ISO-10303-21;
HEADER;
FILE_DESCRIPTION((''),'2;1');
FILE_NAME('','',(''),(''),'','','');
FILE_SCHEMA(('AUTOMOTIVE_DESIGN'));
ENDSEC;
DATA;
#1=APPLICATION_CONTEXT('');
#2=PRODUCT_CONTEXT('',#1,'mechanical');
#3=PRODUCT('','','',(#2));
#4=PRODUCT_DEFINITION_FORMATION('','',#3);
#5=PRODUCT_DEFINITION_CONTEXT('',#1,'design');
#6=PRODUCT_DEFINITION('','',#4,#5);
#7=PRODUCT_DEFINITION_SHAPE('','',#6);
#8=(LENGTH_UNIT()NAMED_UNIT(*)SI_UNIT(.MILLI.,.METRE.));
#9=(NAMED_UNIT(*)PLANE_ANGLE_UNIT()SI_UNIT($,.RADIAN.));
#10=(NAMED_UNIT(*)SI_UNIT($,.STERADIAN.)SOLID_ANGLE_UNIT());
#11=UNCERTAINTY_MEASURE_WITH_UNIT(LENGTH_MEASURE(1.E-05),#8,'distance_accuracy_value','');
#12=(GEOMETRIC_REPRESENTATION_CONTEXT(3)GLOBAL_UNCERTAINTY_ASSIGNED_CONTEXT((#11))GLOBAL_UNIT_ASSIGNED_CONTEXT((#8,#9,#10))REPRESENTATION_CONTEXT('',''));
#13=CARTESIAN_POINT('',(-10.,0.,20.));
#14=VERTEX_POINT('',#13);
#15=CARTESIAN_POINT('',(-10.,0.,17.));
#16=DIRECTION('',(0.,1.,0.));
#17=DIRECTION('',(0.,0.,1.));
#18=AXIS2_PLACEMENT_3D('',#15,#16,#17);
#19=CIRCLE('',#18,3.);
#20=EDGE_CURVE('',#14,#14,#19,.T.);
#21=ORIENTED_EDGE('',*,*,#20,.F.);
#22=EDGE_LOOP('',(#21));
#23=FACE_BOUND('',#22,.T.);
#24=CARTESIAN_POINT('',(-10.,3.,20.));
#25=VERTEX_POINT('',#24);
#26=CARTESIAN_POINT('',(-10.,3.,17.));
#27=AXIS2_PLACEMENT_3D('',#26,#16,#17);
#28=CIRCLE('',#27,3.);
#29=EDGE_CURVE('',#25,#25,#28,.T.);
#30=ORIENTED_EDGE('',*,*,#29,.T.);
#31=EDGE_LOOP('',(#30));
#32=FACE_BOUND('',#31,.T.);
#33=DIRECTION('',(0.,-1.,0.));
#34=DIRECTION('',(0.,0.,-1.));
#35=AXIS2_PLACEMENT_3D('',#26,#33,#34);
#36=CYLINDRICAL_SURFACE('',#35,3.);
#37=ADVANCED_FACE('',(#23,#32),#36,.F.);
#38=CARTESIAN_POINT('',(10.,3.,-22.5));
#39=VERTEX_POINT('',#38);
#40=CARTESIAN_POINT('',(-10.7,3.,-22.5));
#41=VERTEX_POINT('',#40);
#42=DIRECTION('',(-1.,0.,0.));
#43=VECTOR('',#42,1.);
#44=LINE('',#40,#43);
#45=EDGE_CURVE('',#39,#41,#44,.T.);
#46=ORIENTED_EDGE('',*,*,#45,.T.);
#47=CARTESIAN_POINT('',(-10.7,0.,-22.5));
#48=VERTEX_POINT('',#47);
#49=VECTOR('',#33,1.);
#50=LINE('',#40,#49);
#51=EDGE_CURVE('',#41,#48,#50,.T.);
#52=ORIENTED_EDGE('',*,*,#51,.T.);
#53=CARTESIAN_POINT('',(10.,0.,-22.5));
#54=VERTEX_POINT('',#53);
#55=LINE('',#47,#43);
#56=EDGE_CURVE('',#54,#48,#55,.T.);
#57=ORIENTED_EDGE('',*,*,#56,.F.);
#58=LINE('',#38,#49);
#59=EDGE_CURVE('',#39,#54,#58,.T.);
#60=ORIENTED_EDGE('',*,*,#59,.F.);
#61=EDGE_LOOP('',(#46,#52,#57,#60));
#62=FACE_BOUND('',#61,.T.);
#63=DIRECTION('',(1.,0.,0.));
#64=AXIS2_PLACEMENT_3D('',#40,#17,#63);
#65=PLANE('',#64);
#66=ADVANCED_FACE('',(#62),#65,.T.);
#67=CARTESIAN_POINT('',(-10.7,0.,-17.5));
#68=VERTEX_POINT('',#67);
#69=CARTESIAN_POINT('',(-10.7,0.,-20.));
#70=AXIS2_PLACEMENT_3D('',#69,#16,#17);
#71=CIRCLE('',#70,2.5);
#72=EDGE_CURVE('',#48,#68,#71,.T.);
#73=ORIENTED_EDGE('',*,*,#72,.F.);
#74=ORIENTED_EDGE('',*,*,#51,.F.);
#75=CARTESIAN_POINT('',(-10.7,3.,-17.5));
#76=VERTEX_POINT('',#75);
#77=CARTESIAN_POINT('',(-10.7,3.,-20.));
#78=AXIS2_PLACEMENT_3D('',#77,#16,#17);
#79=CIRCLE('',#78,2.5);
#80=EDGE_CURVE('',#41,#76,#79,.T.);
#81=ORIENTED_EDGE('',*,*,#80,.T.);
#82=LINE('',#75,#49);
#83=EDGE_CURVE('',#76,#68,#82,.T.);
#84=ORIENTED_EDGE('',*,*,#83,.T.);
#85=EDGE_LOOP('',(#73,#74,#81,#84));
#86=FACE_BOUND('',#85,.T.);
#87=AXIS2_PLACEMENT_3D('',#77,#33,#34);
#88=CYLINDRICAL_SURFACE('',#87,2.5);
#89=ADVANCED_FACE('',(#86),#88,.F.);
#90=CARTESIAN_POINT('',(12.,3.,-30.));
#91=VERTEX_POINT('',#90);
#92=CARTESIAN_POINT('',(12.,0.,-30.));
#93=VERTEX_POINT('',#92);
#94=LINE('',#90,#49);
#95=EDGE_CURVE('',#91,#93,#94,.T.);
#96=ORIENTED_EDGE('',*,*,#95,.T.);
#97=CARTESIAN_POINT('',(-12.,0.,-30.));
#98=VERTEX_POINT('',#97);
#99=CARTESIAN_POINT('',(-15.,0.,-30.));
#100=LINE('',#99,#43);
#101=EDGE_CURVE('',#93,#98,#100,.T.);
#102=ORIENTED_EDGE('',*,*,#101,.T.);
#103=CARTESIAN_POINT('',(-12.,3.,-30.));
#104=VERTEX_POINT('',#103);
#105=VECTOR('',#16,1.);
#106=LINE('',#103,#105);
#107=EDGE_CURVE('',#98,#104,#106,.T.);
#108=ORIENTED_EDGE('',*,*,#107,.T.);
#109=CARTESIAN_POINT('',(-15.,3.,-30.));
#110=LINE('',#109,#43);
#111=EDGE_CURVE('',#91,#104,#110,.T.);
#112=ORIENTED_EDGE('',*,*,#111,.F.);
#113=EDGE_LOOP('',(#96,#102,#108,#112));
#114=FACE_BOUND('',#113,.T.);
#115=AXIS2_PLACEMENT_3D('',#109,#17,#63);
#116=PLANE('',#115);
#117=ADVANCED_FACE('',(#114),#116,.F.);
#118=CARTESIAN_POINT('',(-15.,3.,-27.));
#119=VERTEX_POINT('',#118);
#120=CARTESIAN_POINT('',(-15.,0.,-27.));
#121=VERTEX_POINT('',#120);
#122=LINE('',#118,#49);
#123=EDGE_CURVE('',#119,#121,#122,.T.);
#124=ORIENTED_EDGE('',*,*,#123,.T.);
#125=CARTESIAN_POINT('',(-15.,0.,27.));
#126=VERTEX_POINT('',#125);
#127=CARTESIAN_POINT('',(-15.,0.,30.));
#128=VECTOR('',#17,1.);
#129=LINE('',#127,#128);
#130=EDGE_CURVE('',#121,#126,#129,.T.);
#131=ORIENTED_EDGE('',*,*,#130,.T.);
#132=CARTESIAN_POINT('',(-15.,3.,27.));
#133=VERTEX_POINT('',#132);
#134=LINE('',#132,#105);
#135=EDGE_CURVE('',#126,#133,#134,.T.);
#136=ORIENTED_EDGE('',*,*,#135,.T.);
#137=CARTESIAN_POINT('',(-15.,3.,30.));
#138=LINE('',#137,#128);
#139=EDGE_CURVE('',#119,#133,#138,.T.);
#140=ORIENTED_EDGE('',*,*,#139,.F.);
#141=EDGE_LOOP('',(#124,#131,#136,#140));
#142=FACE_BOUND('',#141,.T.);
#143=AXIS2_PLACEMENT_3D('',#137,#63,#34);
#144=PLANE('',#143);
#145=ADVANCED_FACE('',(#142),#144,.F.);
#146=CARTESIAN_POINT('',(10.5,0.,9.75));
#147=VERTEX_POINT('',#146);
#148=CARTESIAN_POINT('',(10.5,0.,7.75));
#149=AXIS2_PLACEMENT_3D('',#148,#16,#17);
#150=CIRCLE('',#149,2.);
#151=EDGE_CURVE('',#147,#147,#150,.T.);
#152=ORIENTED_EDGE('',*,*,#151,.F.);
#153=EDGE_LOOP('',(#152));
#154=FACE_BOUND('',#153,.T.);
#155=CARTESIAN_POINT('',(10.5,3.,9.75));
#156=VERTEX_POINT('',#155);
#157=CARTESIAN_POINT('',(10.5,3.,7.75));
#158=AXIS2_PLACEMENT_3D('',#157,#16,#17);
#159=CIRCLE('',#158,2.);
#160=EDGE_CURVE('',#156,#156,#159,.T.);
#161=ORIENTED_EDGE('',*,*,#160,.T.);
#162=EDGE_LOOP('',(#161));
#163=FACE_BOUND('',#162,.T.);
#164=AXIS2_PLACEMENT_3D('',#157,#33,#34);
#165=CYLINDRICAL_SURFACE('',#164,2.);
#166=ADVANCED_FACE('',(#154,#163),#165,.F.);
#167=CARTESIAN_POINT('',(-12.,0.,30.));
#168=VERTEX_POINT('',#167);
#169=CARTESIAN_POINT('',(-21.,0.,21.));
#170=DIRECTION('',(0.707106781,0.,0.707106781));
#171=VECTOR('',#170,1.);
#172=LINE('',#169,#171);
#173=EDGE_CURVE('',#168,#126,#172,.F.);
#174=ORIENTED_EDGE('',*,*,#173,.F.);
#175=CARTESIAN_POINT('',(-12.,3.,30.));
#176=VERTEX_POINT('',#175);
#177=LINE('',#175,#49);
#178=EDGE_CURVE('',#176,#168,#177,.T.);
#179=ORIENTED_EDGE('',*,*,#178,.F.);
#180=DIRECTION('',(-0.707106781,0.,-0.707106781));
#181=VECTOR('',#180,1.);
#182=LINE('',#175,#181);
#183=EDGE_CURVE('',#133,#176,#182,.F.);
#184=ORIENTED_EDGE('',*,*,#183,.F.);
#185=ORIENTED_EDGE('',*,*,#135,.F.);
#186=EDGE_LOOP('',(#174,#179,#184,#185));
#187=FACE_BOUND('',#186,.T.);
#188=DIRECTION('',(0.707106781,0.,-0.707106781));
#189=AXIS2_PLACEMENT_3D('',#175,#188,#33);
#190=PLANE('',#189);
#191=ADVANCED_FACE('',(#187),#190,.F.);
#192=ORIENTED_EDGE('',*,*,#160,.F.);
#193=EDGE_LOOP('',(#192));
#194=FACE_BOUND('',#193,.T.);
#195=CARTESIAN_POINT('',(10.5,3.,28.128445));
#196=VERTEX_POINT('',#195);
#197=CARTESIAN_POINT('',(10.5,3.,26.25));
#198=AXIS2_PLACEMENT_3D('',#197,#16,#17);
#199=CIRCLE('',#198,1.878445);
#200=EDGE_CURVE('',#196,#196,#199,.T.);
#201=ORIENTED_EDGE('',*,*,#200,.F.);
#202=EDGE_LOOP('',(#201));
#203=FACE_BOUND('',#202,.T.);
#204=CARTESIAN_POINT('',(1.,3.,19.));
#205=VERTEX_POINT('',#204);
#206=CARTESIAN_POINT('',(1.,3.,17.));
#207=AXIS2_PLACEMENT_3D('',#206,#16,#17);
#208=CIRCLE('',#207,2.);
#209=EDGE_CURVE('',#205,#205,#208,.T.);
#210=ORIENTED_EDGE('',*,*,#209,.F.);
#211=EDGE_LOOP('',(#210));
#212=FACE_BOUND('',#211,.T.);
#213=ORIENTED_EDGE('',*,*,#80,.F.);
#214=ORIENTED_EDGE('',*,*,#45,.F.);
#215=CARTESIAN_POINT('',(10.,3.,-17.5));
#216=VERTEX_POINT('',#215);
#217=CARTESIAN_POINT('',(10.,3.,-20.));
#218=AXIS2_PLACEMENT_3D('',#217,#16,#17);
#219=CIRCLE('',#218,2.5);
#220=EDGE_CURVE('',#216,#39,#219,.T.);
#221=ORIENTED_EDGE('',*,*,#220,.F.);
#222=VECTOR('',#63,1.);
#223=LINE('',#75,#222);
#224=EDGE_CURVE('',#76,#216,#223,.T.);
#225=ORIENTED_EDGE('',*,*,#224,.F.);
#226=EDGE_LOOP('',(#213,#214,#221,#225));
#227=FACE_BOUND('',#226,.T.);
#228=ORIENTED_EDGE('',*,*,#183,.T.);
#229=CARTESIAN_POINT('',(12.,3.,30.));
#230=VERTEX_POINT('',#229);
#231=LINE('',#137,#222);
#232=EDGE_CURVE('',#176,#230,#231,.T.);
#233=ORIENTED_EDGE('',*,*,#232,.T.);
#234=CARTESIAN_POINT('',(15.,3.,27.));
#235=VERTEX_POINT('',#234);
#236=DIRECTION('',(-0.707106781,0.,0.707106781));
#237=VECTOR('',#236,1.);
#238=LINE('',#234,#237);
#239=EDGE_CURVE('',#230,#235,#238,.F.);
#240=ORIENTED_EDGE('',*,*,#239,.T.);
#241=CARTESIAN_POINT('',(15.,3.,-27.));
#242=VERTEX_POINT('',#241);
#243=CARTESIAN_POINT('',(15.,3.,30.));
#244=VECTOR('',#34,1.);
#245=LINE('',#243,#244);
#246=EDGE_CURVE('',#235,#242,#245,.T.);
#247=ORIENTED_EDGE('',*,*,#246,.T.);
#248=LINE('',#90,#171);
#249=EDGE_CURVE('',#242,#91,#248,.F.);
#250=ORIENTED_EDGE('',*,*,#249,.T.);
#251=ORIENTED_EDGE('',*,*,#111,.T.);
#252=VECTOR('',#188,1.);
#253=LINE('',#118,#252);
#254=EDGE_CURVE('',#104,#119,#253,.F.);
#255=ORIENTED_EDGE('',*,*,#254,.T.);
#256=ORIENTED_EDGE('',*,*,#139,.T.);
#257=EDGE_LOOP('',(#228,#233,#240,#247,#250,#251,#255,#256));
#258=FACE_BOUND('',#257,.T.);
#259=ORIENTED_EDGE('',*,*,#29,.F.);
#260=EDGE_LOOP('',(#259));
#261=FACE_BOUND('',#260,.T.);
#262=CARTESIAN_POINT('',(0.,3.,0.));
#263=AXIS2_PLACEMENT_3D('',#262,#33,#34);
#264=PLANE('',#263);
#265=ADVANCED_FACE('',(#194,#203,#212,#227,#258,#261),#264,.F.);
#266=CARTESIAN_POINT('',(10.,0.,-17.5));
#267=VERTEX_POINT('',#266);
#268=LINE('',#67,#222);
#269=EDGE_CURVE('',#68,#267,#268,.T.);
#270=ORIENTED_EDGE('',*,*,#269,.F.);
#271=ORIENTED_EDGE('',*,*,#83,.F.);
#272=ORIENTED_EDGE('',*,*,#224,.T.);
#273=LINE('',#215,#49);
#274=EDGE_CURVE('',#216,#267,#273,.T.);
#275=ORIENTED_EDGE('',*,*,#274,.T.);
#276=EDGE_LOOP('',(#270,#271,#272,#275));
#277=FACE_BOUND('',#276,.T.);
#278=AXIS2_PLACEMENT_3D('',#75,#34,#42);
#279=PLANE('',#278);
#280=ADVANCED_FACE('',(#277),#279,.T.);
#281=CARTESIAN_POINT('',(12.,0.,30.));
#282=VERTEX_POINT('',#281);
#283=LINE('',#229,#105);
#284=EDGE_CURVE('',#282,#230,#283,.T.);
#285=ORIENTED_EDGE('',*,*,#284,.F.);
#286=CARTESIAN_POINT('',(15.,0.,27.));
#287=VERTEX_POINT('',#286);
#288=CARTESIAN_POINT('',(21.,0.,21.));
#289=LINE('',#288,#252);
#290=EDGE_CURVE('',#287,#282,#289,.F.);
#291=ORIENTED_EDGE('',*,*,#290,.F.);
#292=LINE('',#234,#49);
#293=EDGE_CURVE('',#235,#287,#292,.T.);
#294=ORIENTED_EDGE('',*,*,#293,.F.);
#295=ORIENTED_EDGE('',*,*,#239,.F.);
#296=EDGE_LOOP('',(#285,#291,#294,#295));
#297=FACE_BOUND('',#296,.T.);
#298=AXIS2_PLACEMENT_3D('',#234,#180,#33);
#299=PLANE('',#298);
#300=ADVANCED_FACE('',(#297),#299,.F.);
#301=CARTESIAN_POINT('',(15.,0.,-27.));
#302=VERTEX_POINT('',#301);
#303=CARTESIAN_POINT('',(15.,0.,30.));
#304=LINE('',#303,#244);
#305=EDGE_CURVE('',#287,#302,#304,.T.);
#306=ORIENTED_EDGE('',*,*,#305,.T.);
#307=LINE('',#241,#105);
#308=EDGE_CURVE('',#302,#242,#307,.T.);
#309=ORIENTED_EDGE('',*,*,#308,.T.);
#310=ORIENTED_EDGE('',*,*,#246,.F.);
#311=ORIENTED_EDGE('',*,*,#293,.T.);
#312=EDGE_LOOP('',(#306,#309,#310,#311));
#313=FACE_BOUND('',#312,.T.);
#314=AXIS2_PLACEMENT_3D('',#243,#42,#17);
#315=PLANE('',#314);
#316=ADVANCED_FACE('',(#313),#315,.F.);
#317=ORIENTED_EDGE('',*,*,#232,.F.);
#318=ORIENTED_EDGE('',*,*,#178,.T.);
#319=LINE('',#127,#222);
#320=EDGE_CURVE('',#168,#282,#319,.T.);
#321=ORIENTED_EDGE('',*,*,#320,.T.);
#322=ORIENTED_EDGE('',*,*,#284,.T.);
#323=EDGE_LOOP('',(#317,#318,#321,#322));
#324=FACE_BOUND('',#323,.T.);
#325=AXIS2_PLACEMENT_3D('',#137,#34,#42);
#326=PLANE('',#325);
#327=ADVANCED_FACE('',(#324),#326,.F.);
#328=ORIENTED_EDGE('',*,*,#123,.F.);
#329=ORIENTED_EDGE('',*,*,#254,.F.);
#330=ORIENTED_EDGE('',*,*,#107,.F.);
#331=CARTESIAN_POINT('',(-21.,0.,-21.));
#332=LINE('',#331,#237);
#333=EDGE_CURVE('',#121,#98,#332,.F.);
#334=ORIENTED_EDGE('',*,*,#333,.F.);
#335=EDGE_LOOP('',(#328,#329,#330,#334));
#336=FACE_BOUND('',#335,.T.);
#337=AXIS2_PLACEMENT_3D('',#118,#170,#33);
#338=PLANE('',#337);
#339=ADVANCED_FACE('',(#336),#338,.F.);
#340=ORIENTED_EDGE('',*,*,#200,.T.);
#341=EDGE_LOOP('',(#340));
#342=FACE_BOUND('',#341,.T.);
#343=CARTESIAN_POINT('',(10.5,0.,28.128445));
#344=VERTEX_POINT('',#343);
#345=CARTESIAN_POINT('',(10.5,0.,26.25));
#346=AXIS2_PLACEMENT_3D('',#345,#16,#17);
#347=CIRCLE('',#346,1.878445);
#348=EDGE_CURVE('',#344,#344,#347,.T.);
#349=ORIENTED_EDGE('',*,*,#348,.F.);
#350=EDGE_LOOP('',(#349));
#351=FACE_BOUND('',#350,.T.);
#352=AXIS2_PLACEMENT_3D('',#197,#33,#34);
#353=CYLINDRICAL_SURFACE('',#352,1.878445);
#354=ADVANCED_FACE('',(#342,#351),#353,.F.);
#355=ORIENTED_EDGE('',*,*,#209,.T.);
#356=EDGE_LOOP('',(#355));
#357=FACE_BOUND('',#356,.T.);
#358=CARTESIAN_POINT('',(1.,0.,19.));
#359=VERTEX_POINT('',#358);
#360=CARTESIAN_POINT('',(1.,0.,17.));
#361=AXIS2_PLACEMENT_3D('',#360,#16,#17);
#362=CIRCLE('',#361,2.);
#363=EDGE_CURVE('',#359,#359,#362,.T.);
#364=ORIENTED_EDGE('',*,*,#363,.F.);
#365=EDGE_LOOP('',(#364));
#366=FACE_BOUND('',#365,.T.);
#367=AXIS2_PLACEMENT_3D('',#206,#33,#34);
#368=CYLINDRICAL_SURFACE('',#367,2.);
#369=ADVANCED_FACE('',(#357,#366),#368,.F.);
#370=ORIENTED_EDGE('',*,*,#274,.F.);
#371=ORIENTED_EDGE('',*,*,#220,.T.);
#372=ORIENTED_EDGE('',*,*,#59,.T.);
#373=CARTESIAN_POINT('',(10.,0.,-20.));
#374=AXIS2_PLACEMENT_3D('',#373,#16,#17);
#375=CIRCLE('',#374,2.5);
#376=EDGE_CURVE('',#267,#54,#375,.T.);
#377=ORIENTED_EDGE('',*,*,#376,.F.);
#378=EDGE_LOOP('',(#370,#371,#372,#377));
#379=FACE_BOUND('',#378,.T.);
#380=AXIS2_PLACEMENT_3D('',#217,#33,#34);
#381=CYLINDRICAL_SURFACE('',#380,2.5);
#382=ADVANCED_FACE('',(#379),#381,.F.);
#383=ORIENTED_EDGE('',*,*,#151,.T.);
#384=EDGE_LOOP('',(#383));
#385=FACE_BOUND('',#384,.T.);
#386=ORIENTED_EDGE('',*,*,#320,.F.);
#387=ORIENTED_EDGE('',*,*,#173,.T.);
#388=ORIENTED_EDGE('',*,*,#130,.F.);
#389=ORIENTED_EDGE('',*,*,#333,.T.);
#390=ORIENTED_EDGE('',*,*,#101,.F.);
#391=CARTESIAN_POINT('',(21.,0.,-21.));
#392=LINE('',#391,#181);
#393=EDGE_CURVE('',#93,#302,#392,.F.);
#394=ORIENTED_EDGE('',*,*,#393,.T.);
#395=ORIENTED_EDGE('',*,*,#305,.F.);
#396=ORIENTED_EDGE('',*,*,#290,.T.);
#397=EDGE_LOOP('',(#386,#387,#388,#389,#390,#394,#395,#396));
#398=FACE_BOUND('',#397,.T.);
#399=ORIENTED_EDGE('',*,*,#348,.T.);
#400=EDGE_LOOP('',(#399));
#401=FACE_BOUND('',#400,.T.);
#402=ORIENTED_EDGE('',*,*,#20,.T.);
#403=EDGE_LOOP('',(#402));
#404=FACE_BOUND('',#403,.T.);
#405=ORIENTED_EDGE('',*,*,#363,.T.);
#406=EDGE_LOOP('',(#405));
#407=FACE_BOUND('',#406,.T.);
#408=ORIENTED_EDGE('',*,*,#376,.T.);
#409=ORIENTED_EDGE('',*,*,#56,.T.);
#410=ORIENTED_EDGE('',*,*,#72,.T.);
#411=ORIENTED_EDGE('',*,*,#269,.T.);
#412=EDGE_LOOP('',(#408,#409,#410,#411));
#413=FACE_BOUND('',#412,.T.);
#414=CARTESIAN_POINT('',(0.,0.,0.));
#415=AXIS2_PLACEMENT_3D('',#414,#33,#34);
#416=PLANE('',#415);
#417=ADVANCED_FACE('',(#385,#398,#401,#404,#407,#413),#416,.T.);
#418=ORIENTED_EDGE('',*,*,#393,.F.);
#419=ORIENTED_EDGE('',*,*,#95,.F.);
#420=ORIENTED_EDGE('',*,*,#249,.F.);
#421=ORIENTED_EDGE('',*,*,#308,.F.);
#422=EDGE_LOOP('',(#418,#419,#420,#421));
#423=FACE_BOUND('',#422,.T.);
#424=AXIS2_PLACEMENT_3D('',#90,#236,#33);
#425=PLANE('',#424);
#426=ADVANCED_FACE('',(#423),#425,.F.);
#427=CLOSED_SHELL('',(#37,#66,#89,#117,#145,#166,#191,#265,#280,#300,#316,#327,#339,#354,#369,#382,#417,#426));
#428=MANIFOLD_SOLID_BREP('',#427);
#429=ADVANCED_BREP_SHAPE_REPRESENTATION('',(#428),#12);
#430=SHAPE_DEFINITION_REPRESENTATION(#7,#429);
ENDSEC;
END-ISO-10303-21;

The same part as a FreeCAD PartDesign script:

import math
import FreeCAD as App
import Part
import Sketcher

V = App.Vector


def edges_at(feature, points):
    """Names of the edges that pass closest to the given points."""
    edges = feature.Shape.Edges
    near = lambda p: min(range(len(edges)), key=lambda i: edges[i].distToShape(Part.Vertex(*p))[0])
    return sorted({f"Edge{near(p) + 1}" for p in points})

doc = App.newDocument("Part")
body = doc.addObject("PartDesign::Body", "Body")

# Sketch on XZ plane
sketch1 = body.newObject("Sketcher::SketchObject", "Sketch")
sketch1.AttachmentSupport = (doc.getObject("XZ_Plane"), [""])
sketch1.MapMode = "FlatFace"
sketch1.addGeometry([
    Part.LineSegment(V(-15, -30, 0), V(-15, 30, 0)),  # 0
    Part.LineSegment(V(-15, 30, 0), V(15, 30, 0)),  # 1
    Part.LineSegment(V(15, 30, 0), V(15, -30, 0)),  # 2
    Part.LineSegment(V(15, -30, 0), V(-15, -30, 0)),  # 3
    Part.Circle(V(-10, 17, 0), V(0, 0, 1), 3),  # 4
    Part.Circle(V(1, 17, 0), V(0, 0, 1), 2),  # 5
    Part.Circle(V(10.5, 26.2, 0), V(0, 0, 1), 1.9),  # 6
    Part.Circle(V(10.5, 7.8, 0), V(0, 0, 1), 2),  # 7
    Part.LineSegment(V(10, -17.5, 0), V(-10.7, -17.5, 0)),  # 8
    Part.ArcOfCircle(Part.Circle(V(-10.7, -20, 0), V(0, 0, 1), 2.5), math.radians(90), math.radians(270)),  # 9
    Part.LineSegment(V(-10.7, -22.5, 0), V(10, -22.5, 0)),  # 10
    Part.ArcOfCircle(Part.Circle(V(10, -20, 0), V(0, 0, 1), 2.5), math.radians(-90), math.radians(90)),  # 11
], False)
sketch1.addConstraint([
    Sketcher.Constraint("Coincident", 0, 2, 1, 1),
    Sketcher.Constraint("Coincident", 1, 2, 2, 1),
    Sketcher.Constraint("Coincident", 2, 2, 3, 1),
    Sketcher.Constraint("Coincident", 3, 2, 0, 1),
    Sketcher.Constraint("Tangent", 8, 2, 9, 1),
    Sketcher.Constraint("Tangent", 9, 2, 10, 1),
    Sketcher.Constraint("Tangent", 10, 2, 11, 1),
    Sketcher.Constraint("Tangent", 11, 2, 8, 1),
    Sketcher.Constraint("Vertical", 0),
    Sketcher.Constraint("Horizontal", 1),
    Sketcher.Constraint("Vertical", 2),
    Sketcher.Constraint("Horizontal", 3),
    Sketcher.Constraint("Horizontal", 8),
    Sketcher.Constraint("Horizontal", 10),
    Sketcher.Constraint("Equal", 5, 7),
    Sketcher.Constraint("Symmetric", 0, 2, 2, 2, -1, 1),
    Sketcher.Constraint("Horizontal", 4, 3, 5, 3),
    Sketcher.Constraint("Vertical", 6, 3, 7, 3),
    Sketcher.Constraint("Diameter", 4, 6.0),
    Sketcher.Constraint("Diameter", 5, 4.0),
    Sketcher.Constraint("Radius", 9, 2.5),
    Sketcher.Constraint("DistanceX", 1, 1, 1, 2, 30.0),
    Sketcher.Constraint("DistanceY", 0, 1, 0, 2, 60.0),
    Sketcher.Constraint("DistanceX", 8, 2, 8, 1, 20.7),
    Sketcher.Constraint("DistanceX", 4, 3, -1, 1, 10.0),
    Sketcher.Constraint("DistanceY", -1, 1, 4, 3, 17.0),
    Sketcher.Constraint("DistanceX", -1, 1, 5, 3, 1.0),
    Sketcher.Constraint("DistanceY", 9, 3, -1, 1, 20.0),
    Sketcher.Constraint("DistanceX", -1, 1, 11, 3, 10.0),
    Sketcher.Constraint("DistanceX", -1, 1, 6, 3, 10.5),
    Sketcher.Constraint("DistanceY", 7, 3, 6, 3, 18.5),
    Sketcher.Constraint("Diameter", 6, 3.75689),
    Sketcher.Constraint("DistanceY", -1, 1, 6, 3, 26.25),
])
pad1 = body.newObject("PartDesign::Pad", "Pad")
pad1.Profile = sketch1
pad1.Length = 3
pad1.Reversed = True
doc.recompute()

chamfer = body.newObject("PartDesign::Chamfer", "Chamfer")
chamfer.Base = (pad1, edges_at(pad1, [
    (15, 1.5, 30),
    (-15, 1.5, 30),
    (-15, 1.5, -30),
    (15, 1.5, -30),
]))
chamfer.Size = 3

doc.recompute()
